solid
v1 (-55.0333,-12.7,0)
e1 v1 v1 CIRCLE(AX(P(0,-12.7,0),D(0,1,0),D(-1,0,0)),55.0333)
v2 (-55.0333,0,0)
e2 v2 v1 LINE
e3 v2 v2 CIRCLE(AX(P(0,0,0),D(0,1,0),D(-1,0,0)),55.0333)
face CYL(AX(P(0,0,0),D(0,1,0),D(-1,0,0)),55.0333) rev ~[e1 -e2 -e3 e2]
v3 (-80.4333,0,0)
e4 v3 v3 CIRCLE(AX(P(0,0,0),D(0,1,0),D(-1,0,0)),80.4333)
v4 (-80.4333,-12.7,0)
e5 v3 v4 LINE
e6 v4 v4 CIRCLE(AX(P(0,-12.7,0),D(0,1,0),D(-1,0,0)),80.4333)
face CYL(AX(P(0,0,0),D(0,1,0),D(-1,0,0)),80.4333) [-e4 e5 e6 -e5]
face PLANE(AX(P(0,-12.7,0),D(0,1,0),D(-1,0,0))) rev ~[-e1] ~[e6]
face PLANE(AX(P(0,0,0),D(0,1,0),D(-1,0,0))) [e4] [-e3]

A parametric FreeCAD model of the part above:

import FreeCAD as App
import Part
import Sketcher
Q = App.Units.Quantity

doc = App.newDocument("Part")
body = doc.addObject("PartDesign::Body", "Body")

# Sketch on XZ plane
sketch1 = body.newObject("Sketcher::SketchObject", "Sketch")
sketch1.AttachmentSupport = (doc.getObject("XZ_Plane"), [""])
sketch1.MapMode = "FlatFace"
sketch1.addGeometry([
    Part.Circle(App.Vector(0, 0, 0), App.Vector(0, 0, 1), 80.4333),
    Part.Circle(App.Vector(0, 0, 0), App.Vector(0, 0, 1), 55.0333),
], False)
sketch1.addConstraint([
    Sketcher.Constraint("Coincident", 0, 3, -1, 1),
    Sketcher.Constraint("Coincident", 1, 3, -1, 1),
    Sketcher.Constraint("Diameter", 0, Q("160.8666 mm")),
    Sketcher.Constraint("Diameter", 1, Q("110.0666 mm")),
])
pad1 = body.newObject("PartDesign::Pad", "Pad")
pad1.Profile = sketch1
pad1.Length = Q("0.5 in")

doc.recompute()
